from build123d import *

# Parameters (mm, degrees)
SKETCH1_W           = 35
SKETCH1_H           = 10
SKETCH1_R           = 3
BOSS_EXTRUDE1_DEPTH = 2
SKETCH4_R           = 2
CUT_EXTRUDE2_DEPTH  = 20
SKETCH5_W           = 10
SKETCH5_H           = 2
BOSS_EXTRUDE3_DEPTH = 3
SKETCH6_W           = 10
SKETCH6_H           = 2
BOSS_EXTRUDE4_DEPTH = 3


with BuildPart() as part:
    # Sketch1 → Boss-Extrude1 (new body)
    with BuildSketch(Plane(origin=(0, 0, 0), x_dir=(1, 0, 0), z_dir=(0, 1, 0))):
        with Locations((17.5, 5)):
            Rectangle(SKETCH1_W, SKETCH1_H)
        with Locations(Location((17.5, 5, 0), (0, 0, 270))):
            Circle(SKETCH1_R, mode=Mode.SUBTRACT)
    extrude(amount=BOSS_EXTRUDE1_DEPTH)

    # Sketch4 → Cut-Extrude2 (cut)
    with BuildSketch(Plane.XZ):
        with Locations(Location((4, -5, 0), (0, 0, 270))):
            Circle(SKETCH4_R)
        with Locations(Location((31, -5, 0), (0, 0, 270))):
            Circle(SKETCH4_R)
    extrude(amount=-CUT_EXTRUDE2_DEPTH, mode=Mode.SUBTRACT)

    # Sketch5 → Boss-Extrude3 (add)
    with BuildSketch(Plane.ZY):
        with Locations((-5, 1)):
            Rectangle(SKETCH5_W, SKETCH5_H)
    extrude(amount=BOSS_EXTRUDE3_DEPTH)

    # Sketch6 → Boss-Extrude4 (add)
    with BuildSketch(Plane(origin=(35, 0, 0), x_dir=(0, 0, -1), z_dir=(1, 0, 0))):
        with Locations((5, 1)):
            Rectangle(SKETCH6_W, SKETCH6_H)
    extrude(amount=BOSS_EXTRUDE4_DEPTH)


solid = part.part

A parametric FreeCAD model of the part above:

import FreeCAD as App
import Part
import Sketcher
Q = App.Units.Quantity

doc = App.newDocument("Part")
body = doc.addObject("PartDesign::Body", "Body")

sketch1 = doc.addObject("Sketcher::SketchObject", "Sketch")
body.addObject(sketch1)
sketch1.AttachmentSupport = (doc.XZ_Plane, [""])
sketch1.MapMode = "FlatFace"
sketch1.addGeometry([
    Part.LineSegment(App.Vector(0, -10, 0), App.Vector(0, 0, 0)),
    Part.LineSegment(App.Vector(0, 0, 0), App.Vector(35, 0, 0)),
    Part.LineSegment(App.Vector(35, 0, 0), App.Vector(35, -10, 0)),
    Part.LineSegment(App.Vector(35, -10, 0), App.Vector(0, -10, 0)),
    Part.Circle(App.Vector(17.5, -5, 0), App.Vector(0, 0, 1), 3),
], False)
sketch1.addConstraint([
    Sketcher.Constraint("Coincident", 0, 2, 1, 1),
    Sketcher.Constraint("Coincident", 1, 2, 2, 1),
    Sketcher.Constraint("Coincident", 2, 2, 3, 1),
    Sketcher.Constraint("Coincident", 3, 2, 0, 1),
    Sketcher.Constraint("Vertical", 0),
    Sketcher.Constraint("Horizontal", 1),
    Sketcher.Constraint("Vertical", 2),
    Sketcher.Constraint("Horizontal", 3),
    Sketcher.Constraint("Coincident", 0, 2, -1, 1),
    Sketcher.Constraint("Diameter", 4, Q("6 mm")),
    Sketcher.Constraint("DistanceX", 1, 1, 1, 2, Q("35 mm")),
    Sketcher.Constraint("DistanceY", 0, 1, 0, 2, Q("10 mm")),
    Sketcher.Constraint("DistanceY", 4, 3, -1, 1, Q("5 mm")),
    Sketcher.Constraint("DistanceX", -1, 1, 4, 3, Q("17.5 mm")),
])
pad1 = doc.addObject("PartDesign::Pad", "Pad")
body.addObject(pad1)
pad1.Profile = sketch1
pad1.Length = 2
pad1.Reversed = True

sketch2 = doc.addObject("Sketcher::SketchObject", "Sketch001")
body.addObject(sketch2)
sketch2.AttachmentSupport = (doc.XZ_Plane, [""])
sketch2.MapMode = "FlatFace"
sketch2.addGeometry([
    Part.Circle(App.Vector(4, -5, 0), App.Vector(0, 0, 1), 2),
    Part.Circle(App.Vector(31, -5, 0), App.Vector(0, 0, 1), 2),
], False)
sketch2.addConstraint([
    Sketcher.Constraint("Equal", 0, 1),
    Sketcher.Constraint("Horizontal", 0, 3, 1, 3),
    Sketcher.Constraint("Diameter", 0, Q("4 mm")),
    Sketcher.Constraint("DistanceX", -1, 1, 0, 3, Q("4 mm")),
    Sketcher.Constraint("DistanceY", 0, 3, -1, 1, Q("5 mm")),
    Sketcher.Constraint("DistanceX", -1, 1, 1, 3, Q("31 mm")),
])
pocket1 = doc.addObject("PartDesign::Pocket", "Pocket")
body.addObject(pocket1)
pocket1.Profile = sketch2
pocket1.Length = 20

sketch3 = doc.addObject("Sketcher::SketchObject", "Sketch002")
body.addObject(sketch3)
sketch3.AttachmentSupport = (doc.YZ_Plane, [""])
sketch3.MapMode = "FlatFace"
sketch3.addGeometry([
    Part.LineSegment(App.Vector(2, -10, 0), App.Vector(0, -10, 0)),
    Part.LineSegment(App.Vector(0, -10, 0), App.Vector(0, 0, 0)),
    Part.LineSegment(App.Vector(0, 0, 0), App.Vector(2, 0, 0)),
    Part.LineSegment(App.Vector(2, 0, 0), App.Vector(2, -10, 0)),
], False)
sketch3.addConstraint([
    Sketcher.Constraint("Coincident", 0, 2, 1, 1),
    Sketcher.Constraint("Coincident", 1, 2, 2, 1),
    Sketcher.Constraint("Coincident", 2, 2, 3, 1),
    Sketcher.Constraint("Coincident", 3, 2, 0, 1),
    Sketcher.Constraint("Horizontal", 0),
    Sketcher.Constraint("Vertical", 1),
    Sketcher.Constraint("Horizontal", 2),
    Sketcher.Constraint("Vertical", 3),
    Sketcher.Constraint("Coincident", 1, 2, -1, 1),
    Sketcher.Constraint("DistanceX", 0, 2, 0, 1, Q("2 mm")),
    Sketcher.Constraint("DistanceY", 1, 1, 1, 2, Q("10 mm")),
])
pad2 = doc.addObject("PartDesign::Pad", "Pad001")
body.addObject(pad2)
pad2.Profile = sketch3
pad2.Length = 3
pad2.Reversed = True

sketch4 = doc.addObject("Sketcher::SketchObject", "Sketch003")
body.addObject(sketch4)
sketch4.AttachmentSupport = (doc.YZ_Plane, [""])
sketch4.MapMode = "FlatFace"
sketch4.AttachmentOffset = App.Placement(App.Vector(0, 0, 35), App.Rotation())
sketch4.addGeometry([
    Part.LineSegment(App.Vector(2, 0, 0), App.Vector(0, 0, 0)),
    Part.LineSegment(App.Vector(0, 0, 0), App.Vector(0, -10, 0)),
    Part.LineSegment(App.Vector(0, -10, 0), App.Vector(2, -10, 0)),
    Part.LineSegment(App.Vector(2, -10, 0), App.Vector(2, 0, 0)),
], False)
sketch4.addConstraint([
    Sketcher.Constraint("Coincident", 0, 2, 1, 1),
    Sketcher.Constraint("Coincident", 1, 2, 2, 1),
    Sketcher.Constraint("Coincident", 2, 2, 3, 1),
    Sketcher.Constraint("Coincident", 3, 2, 0, 1),
    Sketcher.Constraint("Horizontal", 0),
    Sketcher.Constraint("Vertical", 1),
    Sketcher.Constraint("Horizontal", 2),
    Sketcher.Constraint("Vertical", 3),
    Sketcher.Constraint("Coincident", 0, 2, -1, 1),
    Sketcher.Constraint("DistanceX", 0, 2, 0, 1, Q("2 mm")),
    Sketcher.Constraint("DistanceY", 1, 2, 1, 1, Q("10 mm")),
])
pad3 = doc.addObject("PartDesign::Pad", "Pad002")
body.addObject(pad3)
pad3.Profile = sketch4
pad3.Length = 3

doc.recompute()
